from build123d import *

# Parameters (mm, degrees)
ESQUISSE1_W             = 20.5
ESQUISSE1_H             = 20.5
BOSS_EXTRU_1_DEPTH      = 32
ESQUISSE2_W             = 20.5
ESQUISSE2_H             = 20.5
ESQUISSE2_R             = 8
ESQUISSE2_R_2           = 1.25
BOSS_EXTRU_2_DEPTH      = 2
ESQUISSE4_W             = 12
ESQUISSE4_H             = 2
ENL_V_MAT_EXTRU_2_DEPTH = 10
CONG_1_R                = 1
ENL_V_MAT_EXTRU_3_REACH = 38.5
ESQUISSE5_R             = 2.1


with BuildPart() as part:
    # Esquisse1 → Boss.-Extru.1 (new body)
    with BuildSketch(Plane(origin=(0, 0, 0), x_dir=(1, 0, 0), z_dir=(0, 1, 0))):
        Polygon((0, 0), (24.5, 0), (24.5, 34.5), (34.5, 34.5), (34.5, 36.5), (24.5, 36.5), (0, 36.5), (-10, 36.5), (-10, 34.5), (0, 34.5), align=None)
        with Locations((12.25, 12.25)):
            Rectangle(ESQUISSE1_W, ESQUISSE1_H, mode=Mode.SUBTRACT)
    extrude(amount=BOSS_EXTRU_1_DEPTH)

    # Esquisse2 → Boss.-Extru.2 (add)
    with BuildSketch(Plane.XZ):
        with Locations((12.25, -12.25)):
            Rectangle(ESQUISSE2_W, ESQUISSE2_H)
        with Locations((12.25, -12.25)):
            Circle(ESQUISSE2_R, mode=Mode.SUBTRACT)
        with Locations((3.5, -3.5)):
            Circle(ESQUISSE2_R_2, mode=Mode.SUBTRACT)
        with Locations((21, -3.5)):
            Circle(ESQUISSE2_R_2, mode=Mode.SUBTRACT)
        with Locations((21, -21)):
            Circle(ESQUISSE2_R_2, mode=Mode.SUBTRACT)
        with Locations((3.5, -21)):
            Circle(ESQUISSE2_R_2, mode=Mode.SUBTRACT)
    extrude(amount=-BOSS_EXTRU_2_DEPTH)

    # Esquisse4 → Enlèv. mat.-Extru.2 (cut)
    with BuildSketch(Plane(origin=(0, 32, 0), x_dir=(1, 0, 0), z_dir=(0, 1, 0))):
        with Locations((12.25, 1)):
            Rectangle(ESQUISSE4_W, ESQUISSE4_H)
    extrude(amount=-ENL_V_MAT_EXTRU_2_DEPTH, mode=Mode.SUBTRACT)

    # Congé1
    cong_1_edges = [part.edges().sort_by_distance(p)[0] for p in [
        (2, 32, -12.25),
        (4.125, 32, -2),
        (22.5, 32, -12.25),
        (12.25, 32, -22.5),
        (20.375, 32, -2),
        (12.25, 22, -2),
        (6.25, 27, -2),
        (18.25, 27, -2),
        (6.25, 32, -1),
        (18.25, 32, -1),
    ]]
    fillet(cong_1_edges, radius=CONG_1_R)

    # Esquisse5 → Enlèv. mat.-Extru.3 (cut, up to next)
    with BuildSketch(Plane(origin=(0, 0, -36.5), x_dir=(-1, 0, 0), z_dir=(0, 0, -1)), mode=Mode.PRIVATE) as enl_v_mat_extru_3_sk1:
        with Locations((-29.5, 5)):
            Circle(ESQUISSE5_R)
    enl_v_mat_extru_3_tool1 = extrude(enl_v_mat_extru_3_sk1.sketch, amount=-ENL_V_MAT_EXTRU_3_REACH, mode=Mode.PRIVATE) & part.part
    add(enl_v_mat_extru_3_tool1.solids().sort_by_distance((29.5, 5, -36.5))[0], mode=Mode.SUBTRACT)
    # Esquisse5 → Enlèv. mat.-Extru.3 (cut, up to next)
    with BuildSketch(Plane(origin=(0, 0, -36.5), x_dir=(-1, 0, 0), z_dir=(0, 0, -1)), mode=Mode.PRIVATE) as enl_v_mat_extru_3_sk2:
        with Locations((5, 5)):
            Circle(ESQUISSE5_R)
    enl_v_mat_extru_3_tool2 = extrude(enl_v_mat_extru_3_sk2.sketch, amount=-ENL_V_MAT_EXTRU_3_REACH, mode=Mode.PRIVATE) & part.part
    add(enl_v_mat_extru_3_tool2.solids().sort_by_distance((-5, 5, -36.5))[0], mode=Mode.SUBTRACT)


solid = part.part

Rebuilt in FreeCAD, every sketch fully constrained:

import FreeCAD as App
import Part
import Sketcher

V = App.Vector
Q = App.Units.Quantity


def edges_at(feature, points):
    """Names of the edges that pass closest to the given points."""
    edges = feature.Shape.Edges
    near = lambda p: min(range(len(edges)), key=lambda i: edges[i].distToShape(Part.Vertex(*p))[0])
    return sorted({f"Edge{near(p) + 1}" for p in points})


def add_polygon(sketch, points):
    """Adds a closed chain of lines whose ends are joined by coincident constraints."""
    first, n = sketch.GeometryCount, len(points)
    for a, b in zip(points, points[1:] + points[:1]):
        sketch.addGeometry(Part.LineSegment(App.Vector(*a, 0), App.Vector(*b, 0)), False)
    for i in range(n):
        sketch.addConstraint(Sketcher.Constraint("Coincident", first + i, 2, first + (i + 1) % n, 1))

doc = App.newDocument("Part")
body = doc.addObject("PartDesign::Body", "Body")

# Sketch on XZ plane
sketch1 = body.newObject("Sketcher::SketchObject", "Sketch")
sketch1.AttachmentSupport = (doc.getObject("XZ_Plane"), [""])
sketch1.MapMode = "FlatFace"
add_polygon(sketch1, [(0, 0), (24.5, 0), (24.5, -34.5), (34.5, -34.5), (34.5, -36.5), (-10, -36.5), (-10, -34.5), (0, -34.5)])  # lines 0-7
add_polygon(sketch1, [(22.5, -2), (2, -2), (2, -22.5), (22.5, -22.5)])  # lines 8-11
sketch1.addConstraint([
    Sketcher.Constraint("Horizontal", 0),
    Sketcher.Constraint("Vertical", 1),
    Sketcher.Constraint("Horizontal", 2),
    Sketcher.Constraint("Vertical", 3),
    Sketcher.Constraint("Horizontal", 4),
    Sketcher.Constraint("Vertical", 5),
    Sketcher.Constraint("Horizontal", 6),
    Sketcher.Constraint("Vertical", 7),
    Sketcher.Constraint("Horizontal", 8),
    Sketcher.Constraint("Vertical", 9),
    Sketcher.Constraint("Horizontal", 10),
    Sketcher.Constraint("Vertical", 11),
    Sketcher.Constraint("Coincident", 7, 2, -1, 1),
    Sketcher.Constraint("Horizontal", 2, 2, 5, 2),
    Sketcher.Constraint("Equal", 2, 6),
    Sketcher.Constraint("Equal", 10, 9),
    Sketcher.Constraint("DistanceX", 2, 1, 2, 2, Q("10 mm")),
    Sketcher.Constraint("DistanceY", 3, 2, 3, 1, Q("2 mm")),
    Sketcher.Constraint("DistanceX", 0, 1, 0, 2, Q("24.5 mm")),
    Sketcher.Constraint("DistanceX", 8, 2, 8, 1, Q("20.5 mm")),
    Sketcher.Constraint("DistanceY", 1, 2, 1, 1, Q("34.5 mm")),
    Sketcher.Constraint("DistanceX", -1, 1, 8, 2, Q("2 mm")),
    Sketcher.Constraint("DistanceY", 8, 2, -1, 1, Q("2 mm")),
])
pad1 = body.newObject("PartDesign::Pad", "Pad")
pad1.Profile = sketch1
pad1.Length = 32
pad1.Reversed = True

# Sketch on XZ plane
sketch2 = body.newObject("Sketcher::SketchObject", "Sketch001")
sketch2.AttachmentSupport = (doc.getObject("XZ_Plane"), [""])
sketch2.MapMode = "FlatFace"
add_polygon(sketch2, [(2, -2), (2, -22.5), (22.5, -22.5), (22.5, -2)])  # lines 0-3
sketch2.addGeometry(Part.Circle(V(3.5, -21, 0), V(0, 0, 1), 1.2), False)  # 4
sketch2.addGeometry(Part.Circle(V(21, -21, 0), V(0, 0, 1), 1.2), False)  # 5
sketch2.addGeometry(Part.Circle(V(3.5, -3.5, 0), V(0, 0, 1), 1.2), False)  # 6
sketch2.addGeometry(Part.Circle(V(12.2, -12.2, 0), V(0, 0, 1), 8), False)  # 7
sketch2.addGeometry(Part.Circle(V(21, -3.5, 0), V(0, 0, 1), 1.2), False)  # 8
sketch2.addConstraint([
    Sketcher.Constraint("Vertical", 0),
    Sketcher.Constraint("Horizontal", 1),
    Sketcher.Constraint("Vertical", 2),
    Sketcher.Constraint("Horizontal", 3),
    Sketcher.Constraint("Equal", 4, 5),
    Sketcher.Constraint("Equal", 5, 6),
    Sketcher.Constraint("Equal", 6, 8),
    Sketcher.Constraint("Horizontal", 4, 3, 5, 3),
    Sketcher.Constraint("Horizontal", 6, 3, 8, 3),
    Sketcher.Constraint("Vertical", 4, 3, 6, 3),
    Sketcher.Constraint("Vertical", 5, 3, 8, 3),
    Sketcher.Constraint("Equal", 3, 0),
    Sketcher.Constraint("Diameter", 7, Q("16 mm")),
    Sketcher.Constraint("Diameter", 4, Q("2.5 mm")),
    Sketcher.Constraint("DistanceX", 1, 1, 1, 2, Q("20.5 mm")),
    Sketcher.Constraint("DistanceY", 4, 3, -1, 1, Q("21 mm")),
    Sketcher.Constraint("DistanceX", -1, 1, 5, 3, Q("21 mm")),
    Sketcher.Constraint("DistanceX", -1, 1, 0, 2, Q("2 mm")),
    Sketcher.Constraint("DistanceY", 2, 2, -1, 1, Q("2 mm")),
    Sketcher.Constraint("DistanceY", 0, 2, 6, 3, Q("19 mm")),
    Sketcher.Constraint("DistanceX", 4, 3, 1, 2, Q("19 mm")),
    Sketcher.Constraint("DistanceX", -1, 1, 7, 3, Q("12.25 mm")),
    Sketcher.Constraint("DistanceY", 7, 3, -1, 1, Q("12.25 mm")),
])
pad2 = body.newObject("PartDesign::Pad", "Pad001")
pad2.Profile = sketch2
pad2.Length = 2
pad2.Reversed = True

# Sketch on XZ plane
sketch3 = body.newObject("Sketcher::SketchObject", "Sketch002")
sketch3.AttachmentSupport = (doc.getObject("XZ_Plane"), [""])
sketch3.MapMode = "FlatFace"
sketch3.AttachmentOffset = App.Placement(V(0, 0, -32), App.Rotation())
add_polygon(sketch3, [(6.2, -2), (6.2, 0), (18.2, 0), (18.2, -2)])  # lines 0-3
sketch3.addConstraint([
    Sketcher.Constraint("Vertical", 0),
    Sketcher.Constraint("Horizontal", 1),
    Sketcher.Constraint("Vertical", 2),
    Sketcher.Constraint("Horizontal", 3),
    Sketcher.Constraint("PointOnObject", 0, 2, -1),
    Sketcher.Constraint("DistanceX", 1, 1, 1, 2, Q("12 mm")),
    Sketcher.Constraint("DistanceY", 0, 1, 0, 2, Q("2 mm")),
    Sketcher.Constraint("DistanceX", -1, 1, 0, 2, Q("6.25 mm")),
])
pocket1 = body.newObject("PartDesign::Pocket", "Pocket")
pocket1.Profile = sketch3
pocket1.Length = 10
pocket1.Reversed = True
doc.recompute()

fillet = body.newObject("PartDesign::Fillet", "Fillet")
fillet.Base = (pocket1, edges_at(pocket1, [
    (2, 32, -12.25),
    (4.125, 32, -2),
    (22.5, 32, -12.25),
    (12.25, 32, -22.5),
    (20.375, 32, -2),
    (12.25, 22, -2),
    (6.25, 27, -2),
    (18.25, 27, -2),
    (6.25, 32, -1),
    (18.25, 32, -1),
]))
fillet.Radius = 1

# Sketch on XY plane
sketch4 = body.newObject("Sketcher::SketchObject", "Sketch003")
sketch4.AttachmentSupport = (doc.getObject("XY_Plane"), [""])
sketch4.MapMode = "FlatFace"
sketch4.AttachmentOffset = App.Placement(V(0, 0, -36.5), App.Rotation())
sketch4.addGeometry(Part.Circle(V(29.5, 5, 0), V(0, 0, 1), 2.1), False)
sketch4.addConstraint([
    Sketcher.Constraint("Diameter", 0, Q("4.2 mm")),
    Sketcher.Constraint("DistanceY", -1, 1, 0, 3, Q("5 mm")),
    Sketcher.Constraint("DistanceX", -1, 1, 0, 3, Q("29.5 mm")),
])
pocket2 = body.newObject("PartDesign::Pocket", "Pocket001")
pocket2.Profile = sketch4
pocket2.Type = "UpToFirst"
pocket2.Reversed = True

# Sketch on XY plane
sketch5 = body.newObject("Sketcher::SketchObject", "Sketch004")
sketch5.AttachmentSupport = (doc.getObject("XY_Plane"), [""])
sketch5.MapMode = "FlatFace"
sketch5.AttachmentOffset = App.Placement(V(0, 0, -36.5), App.Rotation())
sketch5.addGeometry(Part.Circle(V(-5, 5, 0), V(0, 0, 1), 2.1), False)
sketch5.addConstraint([
    Sketcher.Constraint("Diameter", 0, Q("4.2 mm")),
    Sketcher.Constraint("DistanceX", 0, 3, -1, 1, Q("5 mm")),
    Sketcher.Constraint("DistanceY", -1, 1, 0, 3, Q("5 mm")),
])
pocket3 = body.newObject("PartDesign::Pocket", "Pocket002")
pocket3.Profile = sketch5
pocket3.Type = "UpToFirst"
pocket3.Reversed = True

doc.recompute()
